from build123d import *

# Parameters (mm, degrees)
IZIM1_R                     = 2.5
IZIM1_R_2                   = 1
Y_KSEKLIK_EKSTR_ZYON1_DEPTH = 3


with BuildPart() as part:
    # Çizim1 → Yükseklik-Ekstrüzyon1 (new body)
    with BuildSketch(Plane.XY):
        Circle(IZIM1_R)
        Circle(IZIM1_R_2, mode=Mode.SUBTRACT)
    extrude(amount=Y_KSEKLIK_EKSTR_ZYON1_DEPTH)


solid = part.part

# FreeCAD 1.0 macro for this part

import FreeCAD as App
import Part
import Sketcher

doc = App.newDocument("Part")
body = doc.addObject("PartDesign::Body", "Body")

# Sketch on XY plane
sketch1 = doc.addObject("Sketcher::SketchObject", "Sketch")
body.addObject(sketch1)
sketch1.AttachmentSupport = (doc.XY_Plane, [""])
sketch1.MapMode = "FlatFace"
sketch1.addGeometry([
    Part.Circle(App.Vector(0, 0, 0), App.Vector(0, 0, 1), 2.5),
    Part.Circle(App.Vector(0, 0, 0), App.Vector(0, 0, 1), 1),
], False)
sketch1.addConstraint([
    Sketcher.Constraint("Coincident", 0, 3, -1, 1),
    Sketcher.Constraint("Coincident", 1, 3, -1, 1),
    Sketcher.Constraint("Diameter", 0, 5.0),
    Sketcher.Constraint("Diameter", 1, 2.0),
])
pad1 = doc.addObject("PartDesign::Pad", "Pad")
body.addObject(pad1)
pad1.Profile = sketch1
pad1.Length = 3

doc.recompute()
